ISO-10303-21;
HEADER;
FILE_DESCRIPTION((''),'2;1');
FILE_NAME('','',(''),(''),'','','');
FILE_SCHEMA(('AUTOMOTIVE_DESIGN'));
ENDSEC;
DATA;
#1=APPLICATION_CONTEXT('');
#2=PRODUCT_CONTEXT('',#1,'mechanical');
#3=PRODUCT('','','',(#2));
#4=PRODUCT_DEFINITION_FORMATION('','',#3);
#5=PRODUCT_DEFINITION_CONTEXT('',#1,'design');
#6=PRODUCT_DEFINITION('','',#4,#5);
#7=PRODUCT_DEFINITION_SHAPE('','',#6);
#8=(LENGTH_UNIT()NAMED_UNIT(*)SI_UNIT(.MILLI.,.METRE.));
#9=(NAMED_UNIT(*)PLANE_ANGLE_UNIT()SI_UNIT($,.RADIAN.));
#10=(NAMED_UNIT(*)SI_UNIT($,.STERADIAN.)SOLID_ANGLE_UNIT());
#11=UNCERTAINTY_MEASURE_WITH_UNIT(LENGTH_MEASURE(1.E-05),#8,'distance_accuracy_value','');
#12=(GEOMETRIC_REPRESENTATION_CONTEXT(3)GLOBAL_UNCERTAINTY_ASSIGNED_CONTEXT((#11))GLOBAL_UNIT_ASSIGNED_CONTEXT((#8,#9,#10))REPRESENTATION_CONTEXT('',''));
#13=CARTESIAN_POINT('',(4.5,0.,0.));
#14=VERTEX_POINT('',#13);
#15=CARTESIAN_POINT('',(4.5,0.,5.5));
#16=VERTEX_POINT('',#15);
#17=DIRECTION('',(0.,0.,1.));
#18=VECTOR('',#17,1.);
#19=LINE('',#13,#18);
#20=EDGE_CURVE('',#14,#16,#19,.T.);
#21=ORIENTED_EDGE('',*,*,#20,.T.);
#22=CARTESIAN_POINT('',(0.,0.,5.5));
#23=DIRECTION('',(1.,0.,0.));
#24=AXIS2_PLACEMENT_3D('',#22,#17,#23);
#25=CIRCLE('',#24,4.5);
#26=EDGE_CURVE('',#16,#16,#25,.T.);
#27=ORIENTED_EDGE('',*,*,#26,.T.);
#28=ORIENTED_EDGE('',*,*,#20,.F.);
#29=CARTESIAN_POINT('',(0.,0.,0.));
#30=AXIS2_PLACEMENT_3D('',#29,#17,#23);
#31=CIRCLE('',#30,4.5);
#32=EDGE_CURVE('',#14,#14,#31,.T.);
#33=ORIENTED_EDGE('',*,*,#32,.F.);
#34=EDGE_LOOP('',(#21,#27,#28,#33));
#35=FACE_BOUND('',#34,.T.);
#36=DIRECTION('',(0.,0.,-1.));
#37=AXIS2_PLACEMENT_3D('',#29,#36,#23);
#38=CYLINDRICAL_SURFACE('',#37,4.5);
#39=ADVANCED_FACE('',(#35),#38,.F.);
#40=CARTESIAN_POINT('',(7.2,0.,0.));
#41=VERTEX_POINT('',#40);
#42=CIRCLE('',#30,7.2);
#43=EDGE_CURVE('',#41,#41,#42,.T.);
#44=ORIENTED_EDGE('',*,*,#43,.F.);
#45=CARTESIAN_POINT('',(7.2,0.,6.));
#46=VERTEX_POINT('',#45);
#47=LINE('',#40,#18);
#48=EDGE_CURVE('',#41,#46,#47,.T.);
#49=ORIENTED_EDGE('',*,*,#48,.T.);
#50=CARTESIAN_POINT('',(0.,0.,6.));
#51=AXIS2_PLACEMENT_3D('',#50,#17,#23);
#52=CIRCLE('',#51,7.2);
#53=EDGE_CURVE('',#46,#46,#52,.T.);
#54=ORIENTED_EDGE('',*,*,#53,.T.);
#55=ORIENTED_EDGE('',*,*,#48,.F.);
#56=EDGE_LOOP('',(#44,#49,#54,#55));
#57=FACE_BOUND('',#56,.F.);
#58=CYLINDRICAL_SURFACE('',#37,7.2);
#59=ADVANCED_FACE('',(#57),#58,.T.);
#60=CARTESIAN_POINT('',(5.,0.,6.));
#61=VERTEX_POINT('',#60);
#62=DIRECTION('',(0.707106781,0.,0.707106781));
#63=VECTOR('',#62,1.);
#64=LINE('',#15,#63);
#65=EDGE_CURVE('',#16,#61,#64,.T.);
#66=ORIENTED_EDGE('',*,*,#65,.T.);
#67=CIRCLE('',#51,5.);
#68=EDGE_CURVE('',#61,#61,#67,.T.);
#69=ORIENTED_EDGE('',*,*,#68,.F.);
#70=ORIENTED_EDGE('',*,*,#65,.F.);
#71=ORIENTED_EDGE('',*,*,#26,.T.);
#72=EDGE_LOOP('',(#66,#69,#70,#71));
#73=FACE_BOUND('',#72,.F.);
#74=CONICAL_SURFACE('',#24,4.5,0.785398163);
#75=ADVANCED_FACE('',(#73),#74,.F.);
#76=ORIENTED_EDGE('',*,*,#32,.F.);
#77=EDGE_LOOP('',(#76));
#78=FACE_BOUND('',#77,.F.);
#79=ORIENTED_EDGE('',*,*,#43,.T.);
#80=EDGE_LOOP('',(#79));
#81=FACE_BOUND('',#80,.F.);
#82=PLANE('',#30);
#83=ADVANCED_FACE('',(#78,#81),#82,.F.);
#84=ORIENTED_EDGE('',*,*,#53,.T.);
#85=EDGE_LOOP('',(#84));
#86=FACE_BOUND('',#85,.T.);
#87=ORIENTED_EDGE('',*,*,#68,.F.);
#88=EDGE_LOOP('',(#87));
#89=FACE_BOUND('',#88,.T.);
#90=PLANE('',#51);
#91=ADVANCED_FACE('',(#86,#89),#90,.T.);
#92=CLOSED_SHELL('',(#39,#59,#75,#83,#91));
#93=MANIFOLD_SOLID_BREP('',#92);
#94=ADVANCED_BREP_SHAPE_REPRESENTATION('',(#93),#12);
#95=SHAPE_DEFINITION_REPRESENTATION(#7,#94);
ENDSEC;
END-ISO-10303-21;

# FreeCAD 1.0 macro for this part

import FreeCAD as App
import Part
import Sketcher
Q = App.Units.Quantity


def edges_at(feature, points):
    """Names of the edges that pass closest to the given points."""
    edges = feature.Shape.Edges
    near = lambda p: min(range(len(edges)), key=lambda i: edges[i].distToShape(Part.Vertex(*p))[0])
    return sorted({f"Edge{near(p) + 1}" for p in points})

doc = App.newDocument("Part")
body = doc.addObject("PartDesign::Body", "Body")

# Sketch on XY plane
sketch1 = body.newObject("Sketcher::SketchObject", "Sketch")
sketch1.AttachmentSupport = (doc.getObject("XY_Plane"), [""])
sketch1.MapMode = "FlatFace"
sketch1.addGeometry(Part.Circle(App.Vector(0, 0, 0), App.Vector(0, 0, 1), 7.2), False)
sketch1.addGeometry(Part.Circle(App.Vector(0, 0, 0), App.Vector(0, 0, 1), 4.5), False)
sketch1.addConstraint(Sketcher.Constraint("Coincident", 0, 3, -1, 1))
sketch1.addConstraint(Sketcher.Constraint("Coincident", 1, 3, -1, 1))
sketch1.addConstraint(Sketcher.Constraint("Diameter", 1, Q("9 mm")))
sketch1.addConstraint(Sketcher.Constraint("Diameter", 0, Q("14.4 mm")))
pad1 = body.newObject("PartDesign::Pad", "Pad")
pad1.Profile = sketch1
pad1.Length = 6
doc.recompute()

chamfer = body.newObject("PartDesign::Chamfer", "Chamfer")
chamfer.Base = (pad1, edges_at(pad1, [(-4.5, 0, 6)]))
chamfer.ChamferType = "Two distances"
chamfer.Size = 0.5
chamfer.Size2 = 0.5

doc.recompute()
